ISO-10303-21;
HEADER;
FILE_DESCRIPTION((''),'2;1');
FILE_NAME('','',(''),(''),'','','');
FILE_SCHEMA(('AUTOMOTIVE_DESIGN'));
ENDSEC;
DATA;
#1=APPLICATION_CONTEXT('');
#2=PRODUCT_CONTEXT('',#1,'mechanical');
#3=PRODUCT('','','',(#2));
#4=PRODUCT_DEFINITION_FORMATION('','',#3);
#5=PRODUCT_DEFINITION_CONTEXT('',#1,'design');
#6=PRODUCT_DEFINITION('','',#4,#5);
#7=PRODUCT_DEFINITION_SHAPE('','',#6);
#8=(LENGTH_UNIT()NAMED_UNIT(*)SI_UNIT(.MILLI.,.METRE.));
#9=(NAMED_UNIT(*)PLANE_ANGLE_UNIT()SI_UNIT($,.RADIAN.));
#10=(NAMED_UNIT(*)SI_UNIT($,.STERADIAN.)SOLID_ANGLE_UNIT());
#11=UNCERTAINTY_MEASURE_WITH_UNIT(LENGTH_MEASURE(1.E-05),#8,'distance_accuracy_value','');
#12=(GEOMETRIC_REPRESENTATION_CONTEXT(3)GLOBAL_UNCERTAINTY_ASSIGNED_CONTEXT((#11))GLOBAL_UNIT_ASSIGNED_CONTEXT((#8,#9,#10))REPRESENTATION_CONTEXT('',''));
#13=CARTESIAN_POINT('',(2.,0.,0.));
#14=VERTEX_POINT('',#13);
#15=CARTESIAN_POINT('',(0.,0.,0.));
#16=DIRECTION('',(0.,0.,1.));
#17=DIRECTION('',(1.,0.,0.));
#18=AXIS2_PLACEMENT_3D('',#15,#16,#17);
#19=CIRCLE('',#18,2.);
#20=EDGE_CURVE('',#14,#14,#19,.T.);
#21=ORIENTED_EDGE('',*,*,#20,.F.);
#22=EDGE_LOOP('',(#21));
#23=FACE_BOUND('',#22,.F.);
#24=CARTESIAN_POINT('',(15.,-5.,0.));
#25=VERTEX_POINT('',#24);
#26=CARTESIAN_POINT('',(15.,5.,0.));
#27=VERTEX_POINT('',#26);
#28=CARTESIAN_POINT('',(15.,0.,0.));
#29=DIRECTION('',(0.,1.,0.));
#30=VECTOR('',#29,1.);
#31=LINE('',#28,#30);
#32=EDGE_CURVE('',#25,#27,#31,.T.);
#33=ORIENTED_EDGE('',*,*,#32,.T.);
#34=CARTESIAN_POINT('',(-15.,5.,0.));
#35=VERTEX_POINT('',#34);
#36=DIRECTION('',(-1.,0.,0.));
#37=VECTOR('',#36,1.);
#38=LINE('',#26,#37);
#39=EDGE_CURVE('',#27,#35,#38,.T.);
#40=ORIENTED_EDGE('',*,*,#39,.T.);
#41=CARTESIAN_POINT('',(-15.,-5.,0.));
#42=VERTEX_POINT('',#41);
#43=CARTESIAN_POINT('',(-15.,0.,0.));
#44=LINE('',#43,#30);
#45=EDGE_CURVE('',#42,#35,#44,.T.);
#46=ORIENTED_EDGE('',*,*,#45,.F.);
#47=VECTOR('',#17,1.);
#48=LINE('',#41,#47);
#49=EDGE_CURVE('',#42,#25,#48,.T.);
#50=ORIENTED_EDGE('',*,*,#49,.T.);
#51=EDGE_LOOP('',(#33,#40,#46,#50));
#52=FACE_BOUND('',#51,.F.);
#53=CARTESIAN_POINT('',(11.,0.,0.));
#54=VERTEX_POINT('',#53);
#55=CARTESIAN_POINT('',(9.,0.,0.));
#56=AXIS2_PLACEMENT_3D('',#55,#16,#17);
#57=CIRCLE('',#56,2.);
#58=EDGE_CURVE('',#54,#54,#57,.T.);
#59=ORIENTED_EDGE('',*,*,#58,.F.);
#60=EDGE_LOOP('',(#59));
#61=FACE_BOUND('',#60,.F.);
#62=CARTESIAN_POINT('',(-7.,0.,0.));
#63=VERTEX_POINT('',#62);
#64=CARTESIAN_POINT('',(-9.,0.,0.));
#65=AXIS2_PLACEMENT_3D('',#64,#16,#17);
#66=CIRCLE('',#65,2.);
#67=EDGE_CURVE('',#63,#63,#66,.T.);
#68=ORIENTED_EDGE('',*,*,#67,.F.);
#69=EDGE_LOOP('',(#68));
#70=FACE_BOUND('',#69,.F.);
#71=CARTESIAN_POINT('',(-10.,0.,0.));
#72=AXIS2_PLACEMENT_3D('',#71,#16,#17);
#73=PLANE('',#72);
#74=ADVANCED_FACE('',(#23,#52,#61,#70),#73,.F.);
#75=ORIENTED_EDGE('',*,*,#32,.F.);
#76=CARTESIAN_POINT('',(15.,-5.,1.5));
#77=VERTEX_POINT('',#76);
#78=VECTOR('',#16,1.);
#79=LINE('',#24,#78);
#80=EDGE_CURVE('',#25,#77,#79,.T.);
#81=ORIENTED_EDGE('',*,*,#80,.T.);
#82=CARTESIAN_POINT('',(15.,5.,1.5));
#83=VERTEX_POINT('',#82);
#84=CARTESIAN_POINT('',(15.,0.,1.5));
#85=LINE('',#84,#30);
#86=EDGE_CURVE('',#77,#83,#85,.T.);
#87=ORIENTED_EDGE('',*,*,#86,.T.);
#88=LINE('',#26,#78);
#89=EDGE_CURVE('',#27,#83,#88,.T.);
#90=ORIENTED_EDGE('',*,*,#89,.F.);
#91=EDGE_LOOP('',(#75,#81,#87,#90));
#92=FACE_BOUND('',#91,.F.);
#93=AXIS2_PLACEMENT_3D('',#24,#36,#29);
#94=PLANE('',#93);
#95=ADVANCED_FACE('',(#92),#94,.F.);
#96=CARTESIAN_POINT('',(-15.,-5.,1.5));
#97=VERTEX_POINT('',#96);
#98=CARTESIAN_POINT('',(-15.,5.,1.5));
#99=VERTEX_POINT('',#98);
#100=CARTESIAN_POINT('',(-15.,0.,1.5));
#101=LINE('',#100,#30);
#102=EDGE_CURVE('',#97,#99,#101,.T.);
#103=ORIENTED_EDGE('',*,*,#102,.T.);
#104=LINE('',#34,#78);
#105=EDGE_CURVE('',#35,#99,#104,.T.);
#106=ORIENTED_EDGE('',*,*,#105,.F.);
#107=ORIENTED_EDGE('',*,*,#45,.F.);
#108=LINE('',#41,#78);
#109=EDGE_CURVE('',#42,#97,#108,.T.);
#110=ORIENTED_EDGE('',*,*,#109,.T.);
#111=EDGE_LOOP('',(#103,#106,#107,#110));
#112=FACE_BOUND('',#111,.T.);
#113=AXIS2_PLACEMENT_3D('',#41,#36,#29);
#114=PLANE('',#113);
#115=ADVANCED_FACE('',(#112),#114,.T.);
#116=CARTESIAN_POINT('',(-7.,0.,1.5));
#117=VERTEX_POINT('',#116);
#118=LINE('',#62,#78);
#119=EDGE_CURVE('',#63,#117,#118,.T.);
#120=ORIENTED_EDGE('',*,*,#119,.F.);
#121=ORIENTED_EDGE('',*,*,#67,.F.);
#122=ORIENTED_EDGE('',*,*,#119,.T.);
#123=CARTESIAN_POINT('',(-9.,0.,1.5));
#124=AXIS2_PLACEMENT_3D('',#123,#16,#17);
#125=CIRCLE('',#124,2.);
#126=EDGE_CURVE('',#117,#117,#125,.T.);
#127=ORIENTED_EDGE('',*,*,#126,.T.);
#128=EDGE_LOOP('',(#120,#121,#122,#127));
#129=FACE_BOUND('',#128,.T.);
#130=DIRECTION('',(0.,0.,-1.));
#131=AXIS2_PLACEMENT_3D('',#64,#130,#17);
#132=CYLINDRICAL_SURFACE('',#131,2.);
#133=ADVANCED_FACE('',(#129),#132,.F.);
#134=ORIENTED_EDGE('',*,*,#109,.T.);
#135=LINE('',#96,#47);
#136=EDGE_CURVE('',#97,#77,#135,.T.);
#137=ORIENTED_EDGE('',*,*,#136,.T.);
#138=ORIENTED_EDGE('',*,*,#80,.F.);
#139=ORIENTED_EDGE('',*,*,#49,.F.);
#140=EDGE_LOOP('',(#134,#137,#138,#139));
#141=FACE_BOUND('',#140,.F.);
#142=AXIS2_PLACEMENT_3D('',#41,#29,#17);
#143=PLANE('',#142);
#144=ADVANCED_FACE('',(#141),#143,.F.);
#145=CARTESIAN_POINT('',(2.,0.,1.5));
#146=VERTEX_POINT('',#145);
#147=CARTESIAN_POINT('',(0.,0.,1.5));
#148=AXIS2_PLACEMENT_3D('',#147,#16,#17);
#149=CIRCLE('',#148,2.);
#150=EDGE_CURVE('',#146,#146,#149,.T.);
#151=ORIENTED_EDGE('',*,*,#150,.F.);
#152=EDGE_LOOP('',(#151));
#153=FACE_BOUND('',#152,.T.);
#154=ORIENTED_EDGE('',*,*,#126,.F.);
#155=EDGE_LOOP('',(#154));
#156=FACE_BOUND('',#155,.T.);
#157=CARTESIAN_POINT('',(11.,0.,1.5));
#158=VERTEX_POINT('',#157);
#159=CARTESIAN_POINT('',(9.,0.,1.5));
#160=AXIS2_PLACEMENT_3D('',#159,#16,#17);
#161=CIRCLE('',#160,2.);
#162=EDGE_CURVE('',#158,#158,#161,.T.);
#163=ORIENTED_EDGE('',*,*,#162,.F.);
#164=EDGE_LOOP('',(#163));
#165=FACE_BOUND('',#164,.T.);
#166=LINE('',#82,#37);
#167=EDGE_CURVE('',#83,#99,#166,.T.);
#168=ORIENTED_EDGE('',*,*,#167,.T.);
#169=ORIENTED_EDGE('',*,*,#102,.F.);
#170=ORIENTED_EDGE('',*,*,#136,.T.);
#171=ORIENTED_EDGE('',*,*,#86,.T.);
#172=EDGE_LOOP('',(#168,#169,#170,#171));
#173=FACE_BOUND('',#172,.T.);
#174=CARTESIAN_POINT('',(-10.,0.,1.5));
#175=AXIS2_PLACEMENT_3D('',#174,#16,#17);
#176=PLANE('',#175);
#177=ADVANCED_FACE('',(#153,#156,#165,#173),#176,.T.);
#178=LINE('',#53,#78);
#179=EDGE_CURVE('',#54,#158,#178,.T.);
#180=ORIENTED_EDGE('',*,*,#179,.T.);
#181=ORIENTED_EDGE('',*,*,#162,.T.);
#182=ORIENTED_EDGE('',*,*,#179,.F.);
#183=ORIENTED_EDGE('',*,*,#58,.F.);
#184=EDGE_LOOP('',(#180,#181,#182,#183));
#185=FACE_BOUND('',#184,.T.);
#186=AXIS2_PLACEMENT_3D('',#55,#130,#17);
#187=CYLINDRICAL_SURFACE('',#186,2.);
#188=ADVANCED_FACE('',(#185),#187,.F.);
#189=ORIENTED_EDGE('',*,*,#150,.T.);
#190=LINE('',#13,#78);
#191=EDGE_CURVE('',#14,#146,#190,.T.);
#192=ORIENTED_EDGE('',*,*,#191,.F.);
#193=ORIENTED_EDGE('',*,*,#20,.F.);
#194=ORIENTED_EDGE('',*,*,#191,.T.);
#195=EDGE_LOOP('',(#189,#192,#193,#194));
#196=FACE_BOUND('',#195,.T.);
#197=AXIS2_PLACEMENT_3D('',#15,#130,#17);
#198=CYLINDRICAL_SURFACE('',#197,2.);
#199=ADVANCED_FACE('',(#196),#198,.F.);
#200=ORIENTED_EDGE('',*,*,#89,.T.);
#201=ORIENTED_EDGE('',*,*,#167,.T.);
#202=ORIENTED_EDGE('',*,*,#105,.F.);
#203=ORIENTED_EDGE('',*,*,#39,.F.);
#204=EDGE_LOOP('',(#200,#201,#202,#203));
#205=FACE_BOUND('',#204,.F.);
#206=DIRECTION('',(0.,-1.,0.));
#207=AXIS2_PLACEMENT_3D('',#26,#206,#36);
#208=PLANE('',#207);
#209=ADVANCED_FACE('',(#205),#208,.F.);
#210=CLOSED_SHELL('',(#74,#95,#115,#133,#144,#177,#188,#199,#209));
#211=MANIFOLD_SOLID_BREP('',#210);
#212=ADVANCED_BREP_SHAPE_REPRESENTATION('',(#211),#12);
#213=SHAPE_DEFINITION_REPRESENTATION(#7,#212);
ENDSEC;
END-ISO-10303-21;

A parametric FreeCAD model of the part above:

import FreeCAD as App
import Part
import Sketcher
Q = App.Units.Quantity


def add_polygon(sketch, points):
    """Adds a closed chain of lines whose ends are joined by coincident constraints."""
    first, n = sketch.GeometryCount, len(points)
    for a, b in zip(points, points[1:] + points[:1]):
        sketch.addGeometry(Part.LineSegment(App.Vector(*a, 0), App.Vector(*b, 0)), False)
    for i in range(n):
        sketch.addConstraint(Sketcher.Constraint("Coincident", first + i, 2, first + (i + 1) % n, 1))

doc = App.newDocument("Part")
body = doc.addObject("PartDesign::Body", "Body")

# Sketch on XY plane
sketch1 = body.newObject("Sketcher::SketchObject", "Sketch")
sketch1.AttachmentSupport = (doc.getObject("XY_Plane"), [""])
sketch1.MapMode = "FlatFace"
add_polygon(sketch1, [(-15, 5), (-15, -5), (15, -5), (15, 5)])  # lines 0-3
sketch1.addGeometry(Part.Circle(App.Vector(-9, 0, 0), App.Vector(0, 0, 1), 2), False)  # 4
sketch1.addGeometry(Part.Circle(App.Vector(0, 0, 0), App.Vector(0, 0, 1), 2), False)  # 5
sketch1.addGeometry(Part.Circle(App.Vector(9, 0, 0), App.Vector(0, 0, 1), 2), False)  # 6
sketch1.addConstraint([
    Sketcher.Constraint("Vertical", 0),
    Sketcher.Constraint("Horizontal", 1),
    Sketcher.Constraint("Vertical", 2),
    Sketcher.Constraint("Horizontal", 3),
    Sketcher.Constraint("Coincident", 5, 3, -1, 1),
    Sketcher.Constraint("Equal", 4, 5),
    Sketcher.Constraint("Equal", 5, 6),
    Sketcher.Constraint("Symmetric", 4, 3, 6, 3, -1, 1),
    Sketcher.Constraint("Symmetric", 0, 2, 2, 2, -1, 1),
    Sketcher.Constraint("PointOnObject", 4, 3, -1),
    Sketcher.Constraint("Diameter", 4, Q("4 mm")),
    Sketcher.Constraint("DistanceX", 1, 1, 1, 2, Q("30 mm")),
    Sketcher.Constraint("DistanceY", 0, 2, 0, 1, Q("10 mm")),
    Sketcher.Constraint("DistanceX", 4, 3, -1, 1, Q("9 mm")),
])
pad1 = body.newObject("PartDesign::Pad", "Pad")
pad1.Profile = sketch1
pad1.Length = 1.5

doc.recompute()
